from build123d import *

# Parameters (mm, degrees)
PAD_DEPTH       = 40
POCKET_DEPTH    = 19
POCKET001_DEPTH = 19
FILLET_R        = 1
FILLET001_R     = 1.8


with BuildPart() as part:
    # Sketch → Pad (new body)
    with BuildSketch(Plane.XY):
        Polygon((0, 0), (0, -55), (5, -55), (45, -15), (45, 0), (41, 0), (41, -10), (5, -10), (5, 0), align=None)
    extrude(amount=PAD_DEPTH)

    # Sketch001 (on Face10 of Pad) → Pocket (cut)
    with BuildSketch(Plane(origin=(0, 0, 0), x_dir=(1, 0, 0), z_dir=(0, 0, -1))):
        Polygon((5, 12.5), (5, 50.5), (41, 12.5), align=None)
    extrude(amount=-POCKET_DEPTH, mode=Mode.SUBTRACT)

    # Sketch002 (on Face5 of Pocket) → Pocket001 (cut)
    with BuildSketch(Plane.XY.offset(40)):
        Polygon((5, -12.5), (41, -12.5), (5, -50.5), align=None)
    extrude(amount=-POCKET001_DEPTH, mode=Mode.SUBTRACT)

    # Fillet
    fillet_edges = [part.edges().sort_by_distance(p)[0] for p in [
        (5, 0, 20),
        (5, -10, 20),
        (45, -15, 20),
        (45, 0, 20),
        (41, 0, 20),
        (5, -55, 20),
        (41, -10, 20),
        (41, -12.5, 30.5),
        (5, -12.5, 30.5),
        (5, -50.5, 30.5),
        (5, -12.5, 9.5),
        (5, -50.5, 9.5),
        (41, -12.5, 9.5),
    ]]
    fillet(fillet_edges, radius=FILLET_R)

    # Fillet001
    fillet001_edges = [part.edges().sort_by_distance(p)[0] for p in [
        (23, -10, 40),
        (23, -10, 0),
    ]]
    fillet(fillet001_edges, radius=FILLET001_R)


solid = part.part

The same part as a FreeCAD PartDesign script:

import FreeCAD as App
import Part
import Sketcher
from FreeCAD import Vector


def edges_at(feature, points):
    """Names of the edges that pass closest to the given points."""
    edges = feature.Shape.Edges
    near = lambda p: min(range(len(edges)), key=lambda i: edges[i].distToShape(Part.Vertex(*p))[0])
    return sorted({f"Edge{near(p) + 1}" for p in points})


def add_polygon(sketch, points):
    """Adds a closed chain of lines whose ends are joined by coincident constraints."""
    first, n = sketch.GeometryCount, len(points)
    for a, b in zip(points, points[1:] + points[:1]):
        sketch.addGeometry(Part.LineSegment(App.Vector(*a, 0), App.Vector(*b, 0)), False)
    for i in range(n):
        sketch.addConstraint(Sketcher.Constraint("Coincident", first + i, 2, first + (i + 1) % n, 1))

doc = App.newDocument("Part")
body = doc.addObject("PartDesign::Body", "Body")

# Sketch on XY plane
sketch1 = doc.addObject("Sketcher::SketchObject", "Sketch")
body.addObject(sketch1)
sketch1.AttachmentSupport = (doc.XY_Plane, [""])
sketch1.MapMode = "FlatFace"
add_polygon(sketch1, [(0, 0), (0, -55), (5, -55), (45, -15), (45, 0), (41, 0), (41, -10), (5, -10), (5, 0)])  # lines 0-8
sketch1.addConstraint(Sketcher.Constraint("Vertical", 0))
sketch1.addConstraint(Sketcher.Constraint("Horizontal", 1))
sketch1.addConstraint(Sketcher.Constraint("Vertical", 3))
sketch1.addConstraint(Sketcher.Constraint("Horizontal", 4))
sketch1.addConstraint(Sketcher.Constraint("Vertical", 5))
sketch1.addConstraint(Sketcher.Constraint("Horizontal", 6))
sketch1.addConstraint(Sketcher.Constraint("Vertical", 7))
sketch1.addConstraint(Sketcher.Constraint("Horizontal", 8))
sketch1.addConstraint(Sketcher.Constraint("Coincident", 8, 2, -1, 1))
sketch1.addConstraint(Sketcher.Constraint("PointOnObject", 3, 2, -1))
sketch1.addConstraint(Sketcher.Constraint("Vertical", 1, 2, 6, 2))
sketch1.addConstraint(Sketcher.Constraint("DistanceX", 1, 1, 1, 2, 5.0))
sketch1.addConstraint(Sketcher.Constraint("DistanceX", 4, 2, 4, 1, 4.0))
sketch1.addConstraint(Sketcher.Constraint("DistanceX", 6, 2, 6, 1, 36.0))
sketch1.addConstraint(Sketcher.Constraint("DistanceY", 0, 2, 0, 1, 55.0))
sketch1.addConstraint(Sketcher.Constraint("DistanceY", 3, 1, 3, 2, 15.0))
sketch1.addConstraint(Sketcher.Constraint("DistanceY", 5, 2, 5, 1, 10.0))
pad1 = doc.addObject("PartDesign::Pad", "Pad")
body.addObject(pad1)
pad1.Profile = sketch1
pad1.Length = 40

# Sketch on XY plane
sketch2 = doc.addObject("Sketcher::SketchObject", "Sketch001")
body.addObject(sketch2)
sketch2.AttachmentSupport = (doc.XY_Plane, [""])
sketch2.MapMode = "FlatFace"
add_polygon(sketch2, [(5, -50), (5, -12), (41, -12)])  # lines 0-2
sketch2.addConstraint(Sketcher.Constraint("Vertical", 0))
sketch2.addConstraint(Sketcher.Constraint("Horizontal", 1))
sketch2.addConstraint(Sketcher.Constraint("DistanceX", 1, 1, 1, 2, 36.0))
sketch2.addConstraint(Sketcher.Constraint("DistanceY", 0, 1, 0, 2, 38.0))
sketch2.addConstraint(Sketcher.Constraint("DistanceX", -1, 1, 0, 2, 5.0))
sketch2.addConstraint(Sketcher.Constraint("DistanceY", 0, 2, -1, 1, 12.5))
pocket1 = doc.addObject("PartDesign::Pocket", "Pocket")
body.addObject(pocket1)
pocket1.Profile = sketch2
pocket1.Length = 19
pocket1.Reversed = True

# Sketch on XY plane
sketch3 = doc.addObject("Sketcher::SketchObject", "Sketch002")
body.addObject(sketch3)
sketch3.AttachmentSupport = (doc.XY_Plane, [""])
sketch3.MapMode = "FlatFace"
sketch3.AttachmentOffset = App.Placement(Vector(0, 0, 40), App.Rotation())
add_polygon(sketch3, [(41, -12), (5, -12), (5, -50)])  # lines 0-2
sketch3.addConstraint(Sketcher.Constraint("Horizontal", 0))
sketch3.addConstraint(Sketcher.Constraint("Vertical", 1))
sketch3.addConstraint(Sketcher.Constraint("DistanceX", 0, 2, 0, 1, 36.0))
sketch3.addConstraint(Sketcher.Constraint("DistanceY", 1, 2, 1, 1, 38.0))
sketch3.addConstraint(Sketcher.Constraint("DistanceX", -1, 1, 0, 2, 5.0))
sketch3.addConstraint(Sketcher.Constraint("DistanceY", 0, 2, -1, 1, 12.5))
pocket2 = doc.addObject("PartDesign::Pocket", "Pocket001")
body.addObject(pocket2)
pocket2.Profile = sketch3
pocket2.Length = 19
doc.recompute()

fillet = doc.addObject("PartDesign::Fillet", "Fillet")
body.addObject(fillet)
fillet.Base = (pocket2, edges_at(pocket2, [
    (5, 0, 20),
    (5, -10, 20),
    (45, -15, 20),
    (45, 0, 20),
    (41, 0, 20),
    (5, -55, 20),
    (41, -10, 20),
    (41, -12.5, 30.5),
    (5, -12.5, 30.5),
    (5, -50.5, 30.5),
    (5, -12.5, 9.5),
    (5, -50.5, 9.5),
    (41, -12.5, 9.5),
]))
fillet.Radius = 1
doc.recompute()

fillet2 = doc.addObject("PartDesign::Fillet", "Fillet001")
body.addObject(fillet2)
fillet2.Base = (fillet, edges_at(fillet, [(23, -10, 40), (23, -10, 0)]))
fillet2.Radius = 1.8

doc.recompute()
